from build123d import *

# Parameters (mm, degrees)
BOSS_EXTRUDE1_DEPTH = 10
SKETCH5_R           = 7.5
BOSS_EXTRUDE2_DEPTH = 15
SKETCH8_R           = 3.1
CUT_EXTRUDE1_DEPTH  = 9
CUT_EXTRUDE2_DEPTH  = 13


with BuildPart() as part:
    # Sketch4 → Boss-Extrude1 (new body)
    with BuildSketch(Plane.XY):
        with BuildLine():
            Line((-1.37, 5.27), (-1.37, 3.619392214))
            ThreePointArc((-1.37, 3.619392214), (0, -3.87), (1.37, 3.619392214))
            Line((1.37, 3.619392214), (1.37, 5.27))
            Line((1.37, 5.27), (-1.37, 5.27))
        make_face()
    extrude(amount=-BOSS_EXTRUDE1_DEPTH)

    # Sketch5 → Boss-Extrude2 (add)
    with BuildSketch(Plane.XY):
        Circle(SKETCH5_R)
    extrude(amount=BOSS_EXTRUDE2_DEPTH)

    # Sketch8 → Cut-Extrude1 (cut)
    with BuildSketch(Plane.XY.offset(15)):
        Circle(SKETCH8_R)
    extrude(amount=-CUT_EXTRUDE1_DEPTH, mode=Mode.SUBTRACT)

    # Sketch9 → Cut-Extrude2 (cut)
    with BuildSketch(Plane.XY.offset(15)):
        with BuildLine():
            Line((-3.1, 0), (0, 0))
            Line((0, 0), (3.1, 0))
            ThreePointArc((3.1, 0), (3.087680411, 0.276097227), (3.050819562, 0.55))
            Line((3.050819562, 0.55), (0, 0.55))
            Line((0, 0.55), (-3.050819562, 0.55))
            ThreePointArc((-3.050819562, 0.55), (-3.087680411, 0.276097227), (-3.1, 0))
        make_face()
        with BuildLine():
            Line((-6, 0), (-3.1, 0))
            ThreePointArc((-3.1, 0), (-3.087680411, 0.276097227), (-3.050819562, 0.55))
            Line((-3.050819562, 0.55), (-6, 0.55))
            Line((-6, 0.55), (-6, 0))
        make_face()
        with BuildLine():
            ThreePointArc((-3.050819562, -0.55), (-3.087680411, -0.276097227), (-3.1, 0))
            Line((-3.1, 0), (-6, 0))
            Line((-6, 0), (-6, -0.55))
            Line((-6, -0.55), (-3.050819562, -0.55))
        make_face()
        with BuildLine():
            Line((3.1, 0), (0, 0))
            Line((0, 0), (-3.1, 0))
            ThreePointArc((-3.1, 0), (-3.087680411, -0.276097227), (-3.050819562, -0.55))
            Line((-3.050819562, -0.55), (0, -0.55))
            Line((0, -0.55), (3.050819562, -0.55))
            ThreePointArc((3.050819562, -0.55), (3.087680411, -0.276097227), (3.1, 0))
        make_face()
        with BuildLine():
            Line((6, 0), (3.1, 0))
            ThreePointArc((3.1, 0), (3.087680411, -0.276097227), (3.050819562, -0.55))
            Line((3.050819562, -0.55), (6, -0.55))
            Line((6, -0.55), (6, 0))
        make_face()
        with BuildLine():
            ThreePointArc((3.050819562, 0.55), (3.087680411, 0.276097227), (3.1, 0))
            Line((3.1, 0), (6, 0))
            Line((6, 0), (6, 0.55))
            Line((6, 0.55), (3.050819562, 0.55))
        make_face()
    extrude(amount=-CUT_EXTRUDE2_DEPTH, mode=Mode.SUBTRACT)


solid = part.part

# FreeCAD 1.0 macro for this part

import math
import FreeCAD as App
import Part
import Sketcher

V = App.Vector


def add_polygon(sketch, points):
    """Adds a closed chain of lines whose ends are joined by coincident constraints."""
    first, n = sketch.GeometryCount, len(points)
    for a, b in zip(points, points[1:] + points[:1]):
        sketch.addGeometry(Part.LineSegment(App.Vector(*a, 0), App.Vector(*b, 0)), False)
    for i in range(n):
        sketch.addConstraint(Sketcher.Constraint("Coincident", first + i, 2, first + (i + 1) % n, 1))

doc = App.newDocument("Part")
body = doc.addObject("PartDesign::Body", "Body")

sketch1 = body.newObject("Sketcher::SketchObject", "Sketch")
sketch1.AttachmentSupport = (doc.getObject("XY_Plane"), [""])
sketch1.MapMode = "FlatFace"
sketch1.addGeometry([
    Part.LineSegment(V(-1.4, 5.3, 0), V(-1.4, 3.6, 0)),
    Part.ArcOfCircle(Part.Circle(V(0, 0, 0), V(0, 0, 1), 3.9), math.radians(111), math.radians(429)),
    Part.LineSegment(V(1.4, 3.6, 0), V(1.4, 5.3, 0)),
    Part.LineSegment(V(1.4, 5.3, 0), V(-1.4, 5.3, 0)),
], False)
sketch1.addConstraint([
    Sketcher.Constraint("Coincident", 0, 2, 1, 1),
    Sketcher.Constraint("Coincident", 1, 2, 2, 1),
    Sketcher.Constraint("Coincident", 2, 2, 3, 1),
    Sketcher.Constraint("Coincident", 3, 2, 0, 1),
    Sketcher.Constraint("Vertical", 0),
    Sketcher.Constraint("Vertical", 2),
    Sketcher.Constraint("Horizontal", 3),
    Sketcher.Constraint("Coincident", 1, 3, -1, 1),
    Sketcher.Constraint("Horizontal", 0, 2, 1, 2),
    Sketcher.Constraint("Radius", 1, 3.87),
    Sketcher.Constraint("DistanceX", 3, 2, 3, 1, 2.74),
    Sketcher.Constraint("DistanceY", -1, 1, 2, 2, 5.27),
])
pad1 = body.newObject("PartDesign::Pad", "Pad")
pad1.Profile = sketch1
pad1.Length = 10
pad1.Reversed = True

sketch2 = body.newObject("Sketcher::SketchObject", "Sketch001")
sketch2.AttachmentSupport = (doc.getObject("XY_Plane"), [""])
sketch2.MapMode = "FlatFace"
sketch2.addGeometry(Part.Circle(V(0, 0, 0), V(0, 0, 1), 8), False)
sketch2.addConstraint([
    Sketcher.Constraint("Coincident", 0, 3, -1, 1),
    Sketcher.Constraint("Diameter", 0, 15.0),
])
pad2 = body.newObject("PartDesign::Pad", "Pad001")
pad2.Profile = sketch2
pad2.Length = 15

sketch3 = body.newObject("Sketcher::SketchObject", "Sketch002")
sketch3.AttachmentSupport = (doc.getObject("XY_Plane"), [""])
sketch3.MapMode = "FlatFace"
sketch3.AttachmentOffset = App.Placement(V(0, 0, 15), App.Rotation())
sketch3.addGeometry(Part.Circle(V(0, 0, 0), V(0, 0, 1), 3.1), False)
sketch3.addConstraint([
    Sketcher.Constraint("Coincident", 0, 3, -1, 1),
    Sketcher.Constraint("Diameter", 0, 6.2),
])
pocket1 = body.newObject("PartDesign::Pocket", "Pocket")
pocket1.Profile = sketch3
pocket1.Length = 9

sketch4 = body.newObject("Sketcher::SketchObject", "Sketch003")
sketch4.AttachmentSupport = (doc.getObject("XY_Plane"), [""])
sketch4.MapMode = "FlatFace"
sketch4.AttachmentOffset = App.Placement(V(0, 0, 15), App.Rotation())
add_polygon(sketch4, [(-6, 0.6), (-6, -0.6), (6, -0.6), (6, 0.6)])
sketch4.addConstraint([
    Sketcher.Constraint("Vertical", 0),
    Sketcher.Constraint("Horizontal", 1),
    Sketcher.Constraint("Vertical", 2),
    Sketcher.Constraint("Horizontal", 3),
    Sketcher.Constraint("Symmetric", 0, 2, 2, 2, -1, 1),
    Sketcher.Constraint("DistanceX", 1, 1, 1, 2, 12.0),
    Sketcher.Constraint("DistanceY", 0, 2, 0, 1, 1.1),
])
pocket2 = body.newObject("PartDesign::Pocket", "Pocket001")
pocket2.Profile = sketch4
pocket2.Length = 13

doc.recompute()
